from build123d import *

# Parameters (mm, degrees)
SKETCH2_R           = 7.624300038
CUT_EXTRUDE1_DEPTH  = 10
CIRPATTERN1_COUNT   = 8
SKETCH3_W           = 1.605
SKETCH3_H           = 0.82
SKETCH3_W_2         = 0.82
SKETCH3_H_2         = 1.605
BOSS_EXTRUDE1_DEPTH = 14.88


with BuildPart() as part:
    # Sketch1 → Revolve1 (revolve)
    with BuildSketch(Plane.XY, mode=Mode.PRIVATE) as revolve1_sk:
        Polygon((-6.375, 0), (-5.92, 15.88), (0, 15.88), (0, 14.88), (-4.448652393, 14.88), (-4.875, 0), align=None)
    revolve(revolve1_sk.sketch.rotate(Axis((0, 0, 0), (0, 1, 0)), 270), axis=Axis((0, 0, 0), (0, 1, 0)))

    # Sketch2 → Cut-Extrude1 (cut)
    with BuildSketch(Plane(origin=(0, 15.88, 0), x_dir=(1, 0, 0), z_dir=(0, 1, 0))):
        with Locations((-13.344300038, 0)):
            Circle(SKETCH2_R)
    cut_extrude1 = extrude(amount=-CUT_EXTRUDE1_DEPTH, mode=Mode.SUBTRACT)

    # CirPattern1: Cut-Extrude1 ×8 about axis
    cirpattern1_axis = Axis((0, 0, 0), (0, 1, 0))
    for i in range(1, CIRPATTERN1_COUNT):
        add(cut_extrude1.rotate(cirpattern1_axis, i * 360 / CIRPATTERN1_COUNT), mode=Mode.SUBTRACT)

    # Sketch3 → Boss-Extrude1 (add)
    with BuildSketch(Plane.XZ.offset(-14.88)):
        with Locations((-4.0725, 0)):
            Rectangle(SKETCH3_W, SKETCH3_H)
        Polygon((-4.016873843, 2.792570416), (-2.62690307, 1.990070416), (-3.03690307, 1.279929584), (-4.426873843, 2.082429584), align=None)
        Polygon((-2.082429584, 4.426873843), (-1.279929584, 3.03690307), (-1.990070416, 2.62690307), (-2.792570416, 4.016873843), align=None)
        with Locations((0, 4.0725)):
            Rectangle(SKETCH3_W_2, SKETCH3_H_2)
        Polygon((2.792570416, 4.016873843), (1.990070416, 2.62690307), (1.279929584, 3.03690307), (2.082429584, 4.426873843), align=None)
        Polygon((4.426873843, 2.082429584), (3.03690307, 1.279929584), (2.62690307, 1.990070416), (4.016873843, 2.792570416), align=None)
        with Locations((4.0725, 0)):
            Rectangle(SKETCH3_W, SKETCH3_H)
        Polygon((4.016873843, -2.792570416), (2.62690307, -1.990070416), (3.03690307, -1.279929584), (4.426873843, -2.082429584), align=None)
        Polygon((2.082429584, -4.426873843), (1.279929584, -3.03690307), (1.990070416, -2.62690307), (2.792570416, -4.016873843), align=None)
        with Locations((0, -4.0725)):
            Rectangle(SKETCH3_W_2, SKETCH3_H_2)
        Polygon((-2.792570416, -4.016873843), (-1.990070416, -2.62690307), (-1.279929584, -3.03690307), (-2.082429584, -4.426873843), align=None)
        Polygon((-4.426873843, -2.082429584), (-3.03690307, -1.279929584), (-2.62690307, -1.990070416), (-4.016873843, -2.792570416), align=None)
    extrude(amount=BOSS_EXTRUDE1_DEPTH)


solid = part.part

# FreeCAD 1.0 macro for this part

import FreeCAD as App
import Part
import Sketcher

V = App.Vector
Q = App.Units.Quantity

doc = App.newDocument("Part")
params = doc.addObject("Spreadsheet::Sheet", "Params")
for row, (alias, value) in enumerate([
    ("sketch1_height", "1 mm"),
    ("sketch1_width", "1.5 mm"),
    ("sketch1_width2", "5.92 mm"),
    ("revolution_angle", "360 deg"),
    ("pocket1_length", "10 mm"),
    ("sketch3_width", "0.82 mm"),
    ("sketch3_length", "0.82 mm"),
    ("pad1_length", "14.88 mm"),
], start=1):
    params.set(f"A{row}", alias)
    params.set(f"B{row}", "=" + value)
    params.setAlias(f"B{row}", alias)

body = doc.addObject("PartDesign::Body", "Body")

sketch1 = body.newObject("Sketcher::SketchObject", "Sketch")
sketch1.AttachmentSupport = (doc.getObject("XY_Plane"), [""])
sketch1.MapMode = "FlatFace"
sketch1.addGeometry(Part.LineSegment(V(-5.9, 15.9, 0), V(-6.4, 0, 0)), False)
sketch1.addGeometry(Part.LineSegment(V(-6.4, 0, 0), V(-4.9, 0, 0)), False)
sketch1.addGeometry(Part.LineSegment(V(-4.9, 0, 0), V(-4.4, 14.9, 0)), False)
sketch1.addGeometry(Part.LineSegment(V(-4.4, 14.9, 0), V(0, 14.9, 0)), False)
sketch1.addGeometry(Part.LineSegment(V(0, 14.9, 0), V(0, 15.9, 0)), False)
sketch1.addGeometry(Part.LineSegment(V(0, 15.9, 0), V(-5.9, 15.9, 0)), False)
sketch1.addConstraint(Sketcher.Constraint("Coincident", 0, 2, 1, 1))
sketch1.addConstraint(Sketcher.Constraint("Coincident", 1, 2, 2, 1))
sketch1.addConstraint(Sketcher.Constraint("Coincident", 2, 2, 3, 1))
sketch1.addConstraint(Sketcher.Constraint("Coincident", 3, 2, 4, 1))
sketch1.addConstraint(Sketcher.Constraint("Coincident", 4, 2, 5, 1))
sketch1.addConstraint(Sketcher.Constraint("Coincident", 5, 2, 0, 1))
sketch1.addConstraint(Sketcher.Constraint("Horizontal", 1))
sketch1.addConstraint(Sketcher.Constraint("Horizontal", 3))
sketch1.addConstraint(Sketcher.Constraint("Vertical", 4))
sketch1.addConstraint(Sketcher.Constraint("Horizontal", 5))
sketch1.addConstraint(Sketcher.Constraint("PointOnObject", 0, 2, -1))
sketch1.addConstraint(Sketcher.Constraint("PointOnObject", 3, 2, -2))
sketch1.addConstraint(Sketcher.Constraint("Parallel", 0, 2))
sketch1.addConstraint(Sketcher.Constraint("DistanceY", 4, 1, 4, 2, Q("1 mm")))
sketch1.addConstraint(Sketcher.Constraint("DistanceX", 1, 1, 1, 2, Q("1.5 mm")))
sketch1.addConstraint(Sketcher.Constraint("DistanceX", 5, 2, 5, 1, Q("5.92 mm")))
sketch1.addConstraint(Sketcher.Constraint("DistanceY", -1, 1, 2, 2, Q("14.88 mm")))
sketch1.addConstraint(Sketcher.Constraint("DistanceX", 0, 2, -1, 1, Q("6.375 mm")))
sketch1.setExpression("Constraints[13]", "Params.sketch1_height")
sketch1.setExpression("Constraints[14]", "Params.sketch1_width")
sketch1.setExpression("Constraints[15]", "Params.sketch1_width2")
revolution = body.newObject("PartDesign::Revolution", "Revolution")
revolution.Profile = sketch1
revolution.ReferenceAxis = (sketch1, ["V_Axis"])
revolution.setExpression("Angle", "Params.revolution_angle")

sketch2 = body.newObject("Sketcher::SketchObject", "Sketch001")
sketch2.AttachmentSupport = (doc.getObject("XZ_Plane"), [""])
sketch2.MapMode = "FlatFace"
sketch2.AttachmentOffset = App.Placement(V(0, 0, -15.88), App.Rotation())
sketch2.addGeometry(Part.Circle(V(-13, 0, 0), V(0, 0, 1), 8), False)
sketch2.addConstraint(Sketcher.Constraint("PointOnObject", 0, 3, -1))
sketch2.addConstraint(Sketcher.Constraint("Diameter", 0, Q("15.2486 mm")))
sketch2.addConstraint(Sketcher.Constraint("DistanceX", 0, 3, -1, 1, Q("13.3443 mm")))
pocket1 = body.newObject("PartDesign::Pocket", "Pocket")
pocket1.Profile = sketch2
pocket1.setExpression("Length", "Params.pocket1_length")
pocket1.Reversed = True
doc.recompute()

polarpattern = body.newObject("PartDesign::PolarPattern", "PolarPattern")
polarpattern.Originals = [pocket1]
polarpattern.Axis = (doc.getObject("Y_Axis"), [""])
polarpattern.Angle = 360
polarpattern.Occurrences = 8
body.Tip = polarpattern

sketch3 = body.newObject("Sketcher::SketchObject", "Sketch002")
sketch3.AttachmentSupport = (doc.getObject("XZ_Plane"), [""])
sketch3.MapMode = "FlatFace"
sketch3.AttachmentOffset = App.Placement(V(0, 0, -14.88), App.Rotation())
sketch3.addGeometry(Part.LineSegment(V(-4.9, 0.4, 0), V(-4.9, -0.4, 0)), False)
sketch3.addGeometry(Part.LineSegment(V(-4.9, -0.4, 0), V(-3.3, -0.4, 0)), False)
sketch3.addGeometry(Part.LineSegment(V(-3.3, -0.4, 0), V(-3.3, 0.4, 0)), False)
sketch3.addGeometry(Part.LineSegment(V(-3.3, 0.4, 0), V(-4.9, 0.4, 0)), False)
sketch3.addGeometry(Part.LineSegment(V(-2.6, 2, 0), V(-4, 2.8, 0)), False)
sketch3.addGeometry(Part.LineSegment(V(-4, 2.8, 0), V(-4.4, 2.1, 0)), False)
sketch3.addGeometry(Part.LineSegment(V(-4.4, 2.1, 0), V(-3, 1.3, 0)), False)
sketch3.addGeometry(Part.LineSegment(V(-3, 1.3, 0), V(-2.6, 2, 0)), False)
sketch3.addGeometry(Part.LineSegment(V(-1.3, 3, 0), V(-2.1, 4.4, 0)), False)
sketch3.addGeometry(Part.LineSegment(V(-2.1, 4.4, 0), V(-2.8, 4, 0)), False)
sketch3.addGeometry(Part.LineSegment(V(-2.8, 4, 0), V(-2, 2.6, 0)), False)
sketch3.addGeometry(Part.LineSegment(V(-2, 2.6, 0), V(-1.3, 3, 0)), False)
sketch3.addGeometry(Part.LineSegment(V(-0.4, 4.9, 0), V(-0.4, 3.3, 0)), False)
sketch3.addGeometry(Part.LineSegment(V(-0.4, 3.3, 0), V(0.4, 3.3, 0)), False)
sketch3.addGeometry(Part.LineSegment(V(0.4, 3.3, 0), V(0.4, 4.9, 0)), False)
sketch3.addGeometry(Part.LineSegment(V(0.4, 4.9, 0), V(-0.4, 4.9, 0)), False)
sketch3.addGeometry(Part.LineSegment(V(2, 2.6, 0), V(2.8, 4, 0)), False)
sketch3.addGeometry(Part.LineSegment(V(2.8, 4, 0), V(2.1, 4.4, 0)), False)
sketch3.addGeometry(Part.LineSegment(V(2.1, 4.4, 0), V(1.3, 3, 0)), False)
sketch3.addGeometry(Part.LineSegment(V(1.3, 3, 0), V(2, 2.6, 0)), False)
sketch3.addGeometry(Part.LineSegment(V(3, 1.3, 0), V(4.4, 2.1, 0)), False)
sketch3.addGeometry(Part.LineSegment(V(4.4, 2.1, 0), V(4, 2.8, 0)), False)
sketch3.addGeometry(Part.LineSegment(V(4, 2.8, 0), V(2.6, 2, 0)), False)
sketch3.addGeometry(Part.LineSegment(V(2.6, 2, 0), V(3, 1.3, 0)), False)
sketch3.addGeometry(Part.LineSegment(V(3.3, 0.4, 0), V(3.3, -0.4, 0)), False)
sketch3.addGeometry(Part.LineSegment(V(3.3, -0.4, 0), V(4.9, -0.4, 0)), False)
sketch3.addGeometry(Part.LineSegment(V(4.9, -0.4, 0), V(4.9, 0.4, 0)), False)
sketch3.addGeometry(Part.LineSegment(V(4.9, 0.4, 0), V(3.3, 0.4, 0)), False)
sketch3.addGeometry(Part.LineSegment(V(2.6, -2, 0), V(4, -2.8, 0)), False)
sketch3.addGeometry(Part.LineSegment(V(4, -2.8, 0), V(4.4, -2.1, 0)), False)
sketch3.addGeometry(Part.LineSegment(V(4.4, -2.1, 0), V(3, -1.3, 0)), False)
sketch3.addGeometry(Part.LineSegment(V(3, -1.3, 0), V(2.6, -2, 0)), False)
sketch3.addGeometry(Part.LineSegment(V(1.3, -3, 0), V(2.1, -4.4, 0)), False)
sketch3.addGeometry(Part.LineSegment(V(2.1, -4.4, 0), V(2.8, -4, 0)), False)
sketch3.addGeometry(Part.LineSegment(V(2.8, -4, 0), V(2, -2.6, 0)), False)
sketch3.addGeometry(Part.LineSegment(V(2, -2.6, 0), V(1.3, -3, 0)), False)
sketch3.addGeometry(Part.LineSegment(V(-0.4, -3.3, 0), V(-0.4, -4.9, 0)), False)
sketch3.addGeometry(Part.LineSegment(V(-0.4, -4.9, 0), V(0.4, -4.9, 0)), False)
sketch3.addGeometry(Part.LineSegment(V(0.4, -4.9, 0), V(0.4, -3.3, 0)), False)
sketch3.addGeometry(Part.LineSegment(V(0.4, -3.3, 0), V(-0.4, -3.3, 0)), False)
sketch3.addGeometry(Part.LineSegment(V(-2, -2.6, 0), V(-2.8, -4, 0)), False)
sketch3.addGeometry(Part.LineSegment(V(-2.8, -4, 0), V(-2.1, -4.4, 0)), False)
sketch3.addGeometry(Part.LineSegment(V(-2.1, -4.4, 0), V(-1.3, -3, 0)), False)
sketch3.addGeometry(Part.LineSegment(V(-1.3, -3, 0), V(-2, -2.6, 0)), False)
sketch3.addGeometry(Part.LineSegment(V(-3, -1.3, 0), V(-4.4, -2.1, 0)), False)
sketch3.addGeometry(Part.LineSegment(V(-4.4, -2.1, 0), V(-4, -2.8, 0)), False)
sketch3.addGeometry(Part.LineSegment(V(-4, -2.8, 0), V(-2.6, -2, 0)), False)
sketch3.addGeometry(Part.LineSegment(V(-2.6, -2, 0), V(-3, -1.3, 0)), False)
sketch3.addConstraint(Sketcher.Constraint("Coincident", 0, 2, 1, 1))
sketch3.addConstraint(Sketcher.Constraint("Coincident", 1, 2, 2, 1))
sketch3.addConstraint(Sketcher.Constraint("Coincident", 2, 2, 3, 1))
sketch3.addConstraint(Sketcher.Constraint("Coincident", 3, 2, 0, 1))
sketch3.addConstraint(Sketcher.Constraint("Coincident", 4, 2, 5, 1))
sketch3.addConstraint(Sketcher.Constraint("Coincident", 5, 2, 6, 1))
sketch3.addConstraint(Sketcher.Constraint("Coincident", 6, 2, 7, 1))
sketch3.addConstraint(Sketcher.Constraint("Coincident", 7, 2, 4, 1))
sketch3.addConstraint(Sketcher.Constraint("Coincident", 8, 2, 9, 1))
sketch3.addConstraint(Sketcher.Constraint("Coincident", 9, 2, 10, 1))
sketch3.addConstraint(Sketcher.Constraint("Coincident", 10, 2, 11, 1))
sketch3.addConstraint(Sketcher.Constraint("Coincident", 11, 2, 8, 1))
sketch3.addConstraint(Sketcher.Constraint("Coincident", 12, 2, 13, 1))
sketch3.addConstraint(Sketcher.Constraint("Coincident", 13, 2, 14, 1))
sketch3.addConstraint(Sketcher.Constraint("Coincident", 14, 2, 15, 1))
sketch3.addConstraint(Sketcher.Constraint("Coincident", 15, 2, 12, 1))
sketch3.addConstraint(Sketcher.Constraint("Coincident", 16, 2, 17, 1))
sketch3.addConstraint(Sketcher.Constraint("Coincident", 17, 2, 18, 1))
sketch3.addConstraint(Sketcher.Constraint("Coincident", 18, 2, 19, 1))
sketch3.addConstraint(Sketcher.Constraint("Coincident", 19, 2, 16, 1))
sketch3.addConstraint(Sketcher.Constraint("Coincident", 20, 2, 21, 1))
sketch3.addConstraint(Sketcher.Constraint("Coincident", 21, 2, 22, 1))
sketch3.addConstraint(Sketcher.Constraint("Coincident", 22, 2, 23, 1))
sketch3.addConstraint(Sketcher.Constraint("Coincident", 23, 2, 20, 1))
sketch3.addConstraint(Sketcher.Constraint("Coincident", 24, 2, 25, 1))
sketch3.addConstraint(Sketcher.Constraint("Coincident", 25, 2, 26, 1))
sketch3.addConstraint(Sketcher.Constraint("Coincident", 26, 2, 27, 1))
sketch3.addConstraint(Sketcher.Constraint("Coincident", 27, 2, 24, 1))
sketch3.addConstraint(Sketcher.Constraint("Coincident", 28, 2, 29, 1))
sketch3.addConstraint(Sketcher.Constraint("Coincident", 29, 2, 30, 1))
sketch3.addConstraint(Sketcher.Constraint("Coincident", 30, 2, 31, 1))
sketch3.addConstraint(Sketcher.Constraint("Coincident", 31, 2, 28, 1))
sketch3.addConstraint(Sketcher.Constraint("Coincident", 32, 2, 33, 1))
sketch3.addConstraint(Sketcher.Constraint("Coincident", 33, 2, 34, 1))
sketch3.addConstraint(Sketcher.Constraint("Coincident", 34, 2, 35, 1))
sketch3.addConstraint(Sketcher.Constraint("Coincident", 35, 2, 32, 1))
sketch3.addConstraint(Sketcher.Constraint("Coincident", 36, 2, 37, 1))
sketch3.addConstraint(Sketcher.Constraint("Coincident", 37, 2, 38, 1))
sketch3.addConstraint(Sketcher.Constraint("Coincident", 38, 2, 39, 1))
sketch3.addConstraint(Sketcher.Constraint("Coincident", 39, 2, 36, 1))
sketch3.addConstraint(Sketcher.Constraint("Coincident", 40, 2, 41, 1))
sketch3.addConstraint(Sketcher.Constraint("Coincident", 41, 2, 42, 1))
sketch3.addConstraint(Sketcher.Constraint("Coincident", 42, 2, 43, 1))
sketch3.addConstraint(Sketcher.Constraint("Coincident", 43, 2, 40, 1))
sketch3.addConstraint(Sketcher.Constraint("Coincident", 44, 2, 45, 1))
sketch3.addConstraint(Sketcher.Constraint("Coincident", 45, 2, 46, 1))
sketch3.addConstraint(Sketcher.Constraint("Coincident", 46, 2, 47, 1))
sketch3.addConstraint(Sketcher.Constraint("Coincident", 47, 2, 44, 1))
sketch3.addConstraint(Sketcher.Constraint("Vertical", 0))
sketch3.addConstraint(Sketcher.Constraint("Horizontal", 1))
sketch3.addConstraint(Sketcher.Constraint("Vertical", 2))
sketch3.addConstraint(Sketcher.Constraint("Horizontal", 3))
sketch3.addConstraint(Sketcher.Constraint("Vertical", 12))
sketch3.addConstraint(Sketcher.Constraint("Horizontal", 13))
sketch3.addConstraint(Sketcher.Constraint("Vertical", 14))
sketch3.addConstraint(Sketcher.Constraint("Horizontal", 15))
sketch3.addConstraint(Sketcher.Constraint("Vertical", 24))
sketch3.addConstraint(Sketcher.Constraint("Horizontal", 25))
sketch3.addConstraint(Sketcher.Constraint("Vertical", 26))
sketch3.addConstraint(Sketcher.Constraint("Horizontal", 27))
sketch3.addConstraint(Sketcher.Constraint("Vertical", 36))
sketch3.addConstraint(Sketcher.Constraint("Horizontal", 37))
sketch3.addConstraint(Sketcher.Constraint("Vertical", 38))
sketch3.addConstraint(Sketcher.Constraint("Horizontal", 39))
sketch3.addConstraint(Sketcher.Constraint("Symmetric", 2, 2, 24, 2, -1, 1))
sketch3.addConstraint(Sketcher.Constraint("Symmetric", 0, 2, 26, 2, -1, 1))
sketch3.addConstraint(Sketcher.Constraint("Symmetric", 4, 2, 28, 2, -1, 1))
sketch3.addConstraint(Sketcher.Constraint("Symmetric", 5, 2, 29, 2, -1, 1))
sketch3.addConstraint(Sketcher.Constraint("Symmetric", 6, 2, 30, 2, -1, 1))
sketch3.addConstraint(Sketcher.Constraint("Symmetric", 7, 2, 31, 2, -1, 1))
sketch3.addConstraint(Sketcher.Constraint("Symmetric", 8, 2, 32, 2, -1, 1))
sketch3.addConstraint(Sketcher.Constraint("Symmetric", 9, 2, 33, 2, -1, 1))
sketch3.addConstraint(Sketcher.Constraint("Symmetric", 10, 2, 34, 2, -1, 1))
sketch3.addConstraint(Sketcher.Constraint("Symmetric", 11, 2, 35, 2, -1, 1))
sketch3.addConstraint(Sketcher.Constraint("Symmetric", 14, 2, 36, 2, -1, 1))
sketch3.addConstraint(Sketcher.Constraint("Symmetric", 12, 2, 38, 2, -1, 1))
sketch3.addConstraint(Sketcher.Constraint("Symmetric", 16, 2, 40, 2, -1, 1))
sketch3.addConstraint(Sketcher.Constraint("Symmetric", 17, 2, 41, 2, -1, 1))
sketch3.addConstraint(Sketcher.Constraint("Symmetric", 18, 2, 42, 2, -1, 1))
sketch3.addConstraint(Sketcher.Constraint("Symmetric", 19, 2, 43, 2, -1, 1))
sketch3.addConstraint(Sketcher.Constraint("Symmetric", 20, 2, 44, 2, -1, 1))
sketch3.addConstraint(Sketcher.Constraint("Symmetric", 21, 2, 45, 2, -1, 1))
sketch3.addConstraint(Sketcher.Constraint("Symmetric", 22, 2, 46, 2, -1, 1))
sketch3.addConstraint(Sketcher.Constraint("Symmetric", 23, 2, 47, 2, -1, 1))
sketch3.addConstraint(Sketcher.Constraint("Symmetric", 9, 2, 16, 2, -2))
sketch3.addConstraint(Sketcher.Constraint("Symmetric", 8, 2, 17, 2, -2))
sketch3.addConstraint(Sketcher.Constraint("Symmetric", 11, 2, 18, 2, -2))
sketch3.addConstraint(Sketcher.Constraint("Symmetric", 10, 2, 19, 2, -2))
sketch3.addConstraint(Sketcher.Constraint("Symmetric", 5, 2, 20, 2, -2))
sketch3.addConstraint(Sketcher.Constraint("Symmetric", 4, 2, 21, 2, -2))
sketch3.addConstraint(Sketcher.Constraint("Symmetric", 7, 2, 22, 2, -2))
sketch3.addConstraint(Sketcher.Constraint("Symmetric", 6, 2, 23, 2, -2))
sketch3.addConstraint(Sketcher.Constraint("Perpendicular", 4, 5))
sketch3.addConstraint(Sketcher.Constraint("Perpendicular", 5, 6))
sketch3.addConstraint(Sketcher.Constraint("Perpendicular", 6, 7))
sketch3.addConstraint(Sketcher.Constraint("Perpendicular", 8, 9))
sketch3.addConstraint(Sketcher.Constraint("Perpendicular", 9, 10))
sketch3.addConstraint(Sketcher.Constraint("Perpendicular", 10, 11))
sketch3.addConstraint(Sketcher.Constraint("Parallel", 7, 16))
sketch3.addConstraint(Sketcher.Constraint("Horizontal", 1, 2, 24, 2))
sketch3.addConstraint(Sketcher.Constraint("Vertical", 15, 2, 36, 2))
sketch3.addConstraint(Sketcher.Constraint("Equal", 39, 0))
sketch3.addConstraint(Sketcher.Constraint("Equal", 27, 12))
sketch3.addConstraint(Sketcher.Constraint("Equal", 6, 8))
sketch3.addConstraint(Sketcher.Constraint("Equal", 7, 9))
sketch3.addConstraint(Sketcher.Constraint("Angle", 4, Q("150 deg")))
sketch3.addConstraint(Sketcher.Constraint("DistanceX", 13, 1, 13, 2, Q("0.82 mm")))
sketch3.addConstraint(Sketcher.Constraint("Distance", 5, Q("0.82 mm")))
sketch3.addConstraint(Sketcher.Constraint("DistanceX", 1, 1, 1, 2, Q("1.605 mm")))
sketch3.addConstraint(Sketcher.Constraint("DistanceX", 1, 2, -1, 1, Q("3.27 mm")))
sketch3.addConstraint(Sketcher.Constraint("DistanceY", -1, 1, 12, 2, Q("3.27 mm")))
sketch3.addConstraint(Sketcher.Constraint("Distance", 4, Q("1.605 mm")))
sketch3.addConstraint(Sketcher.Constraint("DistanceX", 11, 2, 16, 2, Q("4.0725 mm")))
sketch3.addConstraint(Sketcher.Constraint("DistanceY", 28, 2, 23, 2, Q("4.0725 mm")))
sketch3.addConstraint(Sketcher.Constraint("DistanceX", 4, 2, -1, 1, Q("4.016874 mm")))
sketch3.addConstraint(Sketcher.Constraint("DistanceY", -1, 1, 8, 2, Q("4.426874 mm")))
sketch3.setExpression("Constraints[106]", "Params.sketch3_width")
sketch3.setExpression("Constraints[107]", "Params.sketch3_length")
pad1 = body.newObject("PartDesign::Pad", "Pad")
pad1.Profile = sketch3
pad1.setExpression("Length", "Params.pad1_length")

doc.recompute()
